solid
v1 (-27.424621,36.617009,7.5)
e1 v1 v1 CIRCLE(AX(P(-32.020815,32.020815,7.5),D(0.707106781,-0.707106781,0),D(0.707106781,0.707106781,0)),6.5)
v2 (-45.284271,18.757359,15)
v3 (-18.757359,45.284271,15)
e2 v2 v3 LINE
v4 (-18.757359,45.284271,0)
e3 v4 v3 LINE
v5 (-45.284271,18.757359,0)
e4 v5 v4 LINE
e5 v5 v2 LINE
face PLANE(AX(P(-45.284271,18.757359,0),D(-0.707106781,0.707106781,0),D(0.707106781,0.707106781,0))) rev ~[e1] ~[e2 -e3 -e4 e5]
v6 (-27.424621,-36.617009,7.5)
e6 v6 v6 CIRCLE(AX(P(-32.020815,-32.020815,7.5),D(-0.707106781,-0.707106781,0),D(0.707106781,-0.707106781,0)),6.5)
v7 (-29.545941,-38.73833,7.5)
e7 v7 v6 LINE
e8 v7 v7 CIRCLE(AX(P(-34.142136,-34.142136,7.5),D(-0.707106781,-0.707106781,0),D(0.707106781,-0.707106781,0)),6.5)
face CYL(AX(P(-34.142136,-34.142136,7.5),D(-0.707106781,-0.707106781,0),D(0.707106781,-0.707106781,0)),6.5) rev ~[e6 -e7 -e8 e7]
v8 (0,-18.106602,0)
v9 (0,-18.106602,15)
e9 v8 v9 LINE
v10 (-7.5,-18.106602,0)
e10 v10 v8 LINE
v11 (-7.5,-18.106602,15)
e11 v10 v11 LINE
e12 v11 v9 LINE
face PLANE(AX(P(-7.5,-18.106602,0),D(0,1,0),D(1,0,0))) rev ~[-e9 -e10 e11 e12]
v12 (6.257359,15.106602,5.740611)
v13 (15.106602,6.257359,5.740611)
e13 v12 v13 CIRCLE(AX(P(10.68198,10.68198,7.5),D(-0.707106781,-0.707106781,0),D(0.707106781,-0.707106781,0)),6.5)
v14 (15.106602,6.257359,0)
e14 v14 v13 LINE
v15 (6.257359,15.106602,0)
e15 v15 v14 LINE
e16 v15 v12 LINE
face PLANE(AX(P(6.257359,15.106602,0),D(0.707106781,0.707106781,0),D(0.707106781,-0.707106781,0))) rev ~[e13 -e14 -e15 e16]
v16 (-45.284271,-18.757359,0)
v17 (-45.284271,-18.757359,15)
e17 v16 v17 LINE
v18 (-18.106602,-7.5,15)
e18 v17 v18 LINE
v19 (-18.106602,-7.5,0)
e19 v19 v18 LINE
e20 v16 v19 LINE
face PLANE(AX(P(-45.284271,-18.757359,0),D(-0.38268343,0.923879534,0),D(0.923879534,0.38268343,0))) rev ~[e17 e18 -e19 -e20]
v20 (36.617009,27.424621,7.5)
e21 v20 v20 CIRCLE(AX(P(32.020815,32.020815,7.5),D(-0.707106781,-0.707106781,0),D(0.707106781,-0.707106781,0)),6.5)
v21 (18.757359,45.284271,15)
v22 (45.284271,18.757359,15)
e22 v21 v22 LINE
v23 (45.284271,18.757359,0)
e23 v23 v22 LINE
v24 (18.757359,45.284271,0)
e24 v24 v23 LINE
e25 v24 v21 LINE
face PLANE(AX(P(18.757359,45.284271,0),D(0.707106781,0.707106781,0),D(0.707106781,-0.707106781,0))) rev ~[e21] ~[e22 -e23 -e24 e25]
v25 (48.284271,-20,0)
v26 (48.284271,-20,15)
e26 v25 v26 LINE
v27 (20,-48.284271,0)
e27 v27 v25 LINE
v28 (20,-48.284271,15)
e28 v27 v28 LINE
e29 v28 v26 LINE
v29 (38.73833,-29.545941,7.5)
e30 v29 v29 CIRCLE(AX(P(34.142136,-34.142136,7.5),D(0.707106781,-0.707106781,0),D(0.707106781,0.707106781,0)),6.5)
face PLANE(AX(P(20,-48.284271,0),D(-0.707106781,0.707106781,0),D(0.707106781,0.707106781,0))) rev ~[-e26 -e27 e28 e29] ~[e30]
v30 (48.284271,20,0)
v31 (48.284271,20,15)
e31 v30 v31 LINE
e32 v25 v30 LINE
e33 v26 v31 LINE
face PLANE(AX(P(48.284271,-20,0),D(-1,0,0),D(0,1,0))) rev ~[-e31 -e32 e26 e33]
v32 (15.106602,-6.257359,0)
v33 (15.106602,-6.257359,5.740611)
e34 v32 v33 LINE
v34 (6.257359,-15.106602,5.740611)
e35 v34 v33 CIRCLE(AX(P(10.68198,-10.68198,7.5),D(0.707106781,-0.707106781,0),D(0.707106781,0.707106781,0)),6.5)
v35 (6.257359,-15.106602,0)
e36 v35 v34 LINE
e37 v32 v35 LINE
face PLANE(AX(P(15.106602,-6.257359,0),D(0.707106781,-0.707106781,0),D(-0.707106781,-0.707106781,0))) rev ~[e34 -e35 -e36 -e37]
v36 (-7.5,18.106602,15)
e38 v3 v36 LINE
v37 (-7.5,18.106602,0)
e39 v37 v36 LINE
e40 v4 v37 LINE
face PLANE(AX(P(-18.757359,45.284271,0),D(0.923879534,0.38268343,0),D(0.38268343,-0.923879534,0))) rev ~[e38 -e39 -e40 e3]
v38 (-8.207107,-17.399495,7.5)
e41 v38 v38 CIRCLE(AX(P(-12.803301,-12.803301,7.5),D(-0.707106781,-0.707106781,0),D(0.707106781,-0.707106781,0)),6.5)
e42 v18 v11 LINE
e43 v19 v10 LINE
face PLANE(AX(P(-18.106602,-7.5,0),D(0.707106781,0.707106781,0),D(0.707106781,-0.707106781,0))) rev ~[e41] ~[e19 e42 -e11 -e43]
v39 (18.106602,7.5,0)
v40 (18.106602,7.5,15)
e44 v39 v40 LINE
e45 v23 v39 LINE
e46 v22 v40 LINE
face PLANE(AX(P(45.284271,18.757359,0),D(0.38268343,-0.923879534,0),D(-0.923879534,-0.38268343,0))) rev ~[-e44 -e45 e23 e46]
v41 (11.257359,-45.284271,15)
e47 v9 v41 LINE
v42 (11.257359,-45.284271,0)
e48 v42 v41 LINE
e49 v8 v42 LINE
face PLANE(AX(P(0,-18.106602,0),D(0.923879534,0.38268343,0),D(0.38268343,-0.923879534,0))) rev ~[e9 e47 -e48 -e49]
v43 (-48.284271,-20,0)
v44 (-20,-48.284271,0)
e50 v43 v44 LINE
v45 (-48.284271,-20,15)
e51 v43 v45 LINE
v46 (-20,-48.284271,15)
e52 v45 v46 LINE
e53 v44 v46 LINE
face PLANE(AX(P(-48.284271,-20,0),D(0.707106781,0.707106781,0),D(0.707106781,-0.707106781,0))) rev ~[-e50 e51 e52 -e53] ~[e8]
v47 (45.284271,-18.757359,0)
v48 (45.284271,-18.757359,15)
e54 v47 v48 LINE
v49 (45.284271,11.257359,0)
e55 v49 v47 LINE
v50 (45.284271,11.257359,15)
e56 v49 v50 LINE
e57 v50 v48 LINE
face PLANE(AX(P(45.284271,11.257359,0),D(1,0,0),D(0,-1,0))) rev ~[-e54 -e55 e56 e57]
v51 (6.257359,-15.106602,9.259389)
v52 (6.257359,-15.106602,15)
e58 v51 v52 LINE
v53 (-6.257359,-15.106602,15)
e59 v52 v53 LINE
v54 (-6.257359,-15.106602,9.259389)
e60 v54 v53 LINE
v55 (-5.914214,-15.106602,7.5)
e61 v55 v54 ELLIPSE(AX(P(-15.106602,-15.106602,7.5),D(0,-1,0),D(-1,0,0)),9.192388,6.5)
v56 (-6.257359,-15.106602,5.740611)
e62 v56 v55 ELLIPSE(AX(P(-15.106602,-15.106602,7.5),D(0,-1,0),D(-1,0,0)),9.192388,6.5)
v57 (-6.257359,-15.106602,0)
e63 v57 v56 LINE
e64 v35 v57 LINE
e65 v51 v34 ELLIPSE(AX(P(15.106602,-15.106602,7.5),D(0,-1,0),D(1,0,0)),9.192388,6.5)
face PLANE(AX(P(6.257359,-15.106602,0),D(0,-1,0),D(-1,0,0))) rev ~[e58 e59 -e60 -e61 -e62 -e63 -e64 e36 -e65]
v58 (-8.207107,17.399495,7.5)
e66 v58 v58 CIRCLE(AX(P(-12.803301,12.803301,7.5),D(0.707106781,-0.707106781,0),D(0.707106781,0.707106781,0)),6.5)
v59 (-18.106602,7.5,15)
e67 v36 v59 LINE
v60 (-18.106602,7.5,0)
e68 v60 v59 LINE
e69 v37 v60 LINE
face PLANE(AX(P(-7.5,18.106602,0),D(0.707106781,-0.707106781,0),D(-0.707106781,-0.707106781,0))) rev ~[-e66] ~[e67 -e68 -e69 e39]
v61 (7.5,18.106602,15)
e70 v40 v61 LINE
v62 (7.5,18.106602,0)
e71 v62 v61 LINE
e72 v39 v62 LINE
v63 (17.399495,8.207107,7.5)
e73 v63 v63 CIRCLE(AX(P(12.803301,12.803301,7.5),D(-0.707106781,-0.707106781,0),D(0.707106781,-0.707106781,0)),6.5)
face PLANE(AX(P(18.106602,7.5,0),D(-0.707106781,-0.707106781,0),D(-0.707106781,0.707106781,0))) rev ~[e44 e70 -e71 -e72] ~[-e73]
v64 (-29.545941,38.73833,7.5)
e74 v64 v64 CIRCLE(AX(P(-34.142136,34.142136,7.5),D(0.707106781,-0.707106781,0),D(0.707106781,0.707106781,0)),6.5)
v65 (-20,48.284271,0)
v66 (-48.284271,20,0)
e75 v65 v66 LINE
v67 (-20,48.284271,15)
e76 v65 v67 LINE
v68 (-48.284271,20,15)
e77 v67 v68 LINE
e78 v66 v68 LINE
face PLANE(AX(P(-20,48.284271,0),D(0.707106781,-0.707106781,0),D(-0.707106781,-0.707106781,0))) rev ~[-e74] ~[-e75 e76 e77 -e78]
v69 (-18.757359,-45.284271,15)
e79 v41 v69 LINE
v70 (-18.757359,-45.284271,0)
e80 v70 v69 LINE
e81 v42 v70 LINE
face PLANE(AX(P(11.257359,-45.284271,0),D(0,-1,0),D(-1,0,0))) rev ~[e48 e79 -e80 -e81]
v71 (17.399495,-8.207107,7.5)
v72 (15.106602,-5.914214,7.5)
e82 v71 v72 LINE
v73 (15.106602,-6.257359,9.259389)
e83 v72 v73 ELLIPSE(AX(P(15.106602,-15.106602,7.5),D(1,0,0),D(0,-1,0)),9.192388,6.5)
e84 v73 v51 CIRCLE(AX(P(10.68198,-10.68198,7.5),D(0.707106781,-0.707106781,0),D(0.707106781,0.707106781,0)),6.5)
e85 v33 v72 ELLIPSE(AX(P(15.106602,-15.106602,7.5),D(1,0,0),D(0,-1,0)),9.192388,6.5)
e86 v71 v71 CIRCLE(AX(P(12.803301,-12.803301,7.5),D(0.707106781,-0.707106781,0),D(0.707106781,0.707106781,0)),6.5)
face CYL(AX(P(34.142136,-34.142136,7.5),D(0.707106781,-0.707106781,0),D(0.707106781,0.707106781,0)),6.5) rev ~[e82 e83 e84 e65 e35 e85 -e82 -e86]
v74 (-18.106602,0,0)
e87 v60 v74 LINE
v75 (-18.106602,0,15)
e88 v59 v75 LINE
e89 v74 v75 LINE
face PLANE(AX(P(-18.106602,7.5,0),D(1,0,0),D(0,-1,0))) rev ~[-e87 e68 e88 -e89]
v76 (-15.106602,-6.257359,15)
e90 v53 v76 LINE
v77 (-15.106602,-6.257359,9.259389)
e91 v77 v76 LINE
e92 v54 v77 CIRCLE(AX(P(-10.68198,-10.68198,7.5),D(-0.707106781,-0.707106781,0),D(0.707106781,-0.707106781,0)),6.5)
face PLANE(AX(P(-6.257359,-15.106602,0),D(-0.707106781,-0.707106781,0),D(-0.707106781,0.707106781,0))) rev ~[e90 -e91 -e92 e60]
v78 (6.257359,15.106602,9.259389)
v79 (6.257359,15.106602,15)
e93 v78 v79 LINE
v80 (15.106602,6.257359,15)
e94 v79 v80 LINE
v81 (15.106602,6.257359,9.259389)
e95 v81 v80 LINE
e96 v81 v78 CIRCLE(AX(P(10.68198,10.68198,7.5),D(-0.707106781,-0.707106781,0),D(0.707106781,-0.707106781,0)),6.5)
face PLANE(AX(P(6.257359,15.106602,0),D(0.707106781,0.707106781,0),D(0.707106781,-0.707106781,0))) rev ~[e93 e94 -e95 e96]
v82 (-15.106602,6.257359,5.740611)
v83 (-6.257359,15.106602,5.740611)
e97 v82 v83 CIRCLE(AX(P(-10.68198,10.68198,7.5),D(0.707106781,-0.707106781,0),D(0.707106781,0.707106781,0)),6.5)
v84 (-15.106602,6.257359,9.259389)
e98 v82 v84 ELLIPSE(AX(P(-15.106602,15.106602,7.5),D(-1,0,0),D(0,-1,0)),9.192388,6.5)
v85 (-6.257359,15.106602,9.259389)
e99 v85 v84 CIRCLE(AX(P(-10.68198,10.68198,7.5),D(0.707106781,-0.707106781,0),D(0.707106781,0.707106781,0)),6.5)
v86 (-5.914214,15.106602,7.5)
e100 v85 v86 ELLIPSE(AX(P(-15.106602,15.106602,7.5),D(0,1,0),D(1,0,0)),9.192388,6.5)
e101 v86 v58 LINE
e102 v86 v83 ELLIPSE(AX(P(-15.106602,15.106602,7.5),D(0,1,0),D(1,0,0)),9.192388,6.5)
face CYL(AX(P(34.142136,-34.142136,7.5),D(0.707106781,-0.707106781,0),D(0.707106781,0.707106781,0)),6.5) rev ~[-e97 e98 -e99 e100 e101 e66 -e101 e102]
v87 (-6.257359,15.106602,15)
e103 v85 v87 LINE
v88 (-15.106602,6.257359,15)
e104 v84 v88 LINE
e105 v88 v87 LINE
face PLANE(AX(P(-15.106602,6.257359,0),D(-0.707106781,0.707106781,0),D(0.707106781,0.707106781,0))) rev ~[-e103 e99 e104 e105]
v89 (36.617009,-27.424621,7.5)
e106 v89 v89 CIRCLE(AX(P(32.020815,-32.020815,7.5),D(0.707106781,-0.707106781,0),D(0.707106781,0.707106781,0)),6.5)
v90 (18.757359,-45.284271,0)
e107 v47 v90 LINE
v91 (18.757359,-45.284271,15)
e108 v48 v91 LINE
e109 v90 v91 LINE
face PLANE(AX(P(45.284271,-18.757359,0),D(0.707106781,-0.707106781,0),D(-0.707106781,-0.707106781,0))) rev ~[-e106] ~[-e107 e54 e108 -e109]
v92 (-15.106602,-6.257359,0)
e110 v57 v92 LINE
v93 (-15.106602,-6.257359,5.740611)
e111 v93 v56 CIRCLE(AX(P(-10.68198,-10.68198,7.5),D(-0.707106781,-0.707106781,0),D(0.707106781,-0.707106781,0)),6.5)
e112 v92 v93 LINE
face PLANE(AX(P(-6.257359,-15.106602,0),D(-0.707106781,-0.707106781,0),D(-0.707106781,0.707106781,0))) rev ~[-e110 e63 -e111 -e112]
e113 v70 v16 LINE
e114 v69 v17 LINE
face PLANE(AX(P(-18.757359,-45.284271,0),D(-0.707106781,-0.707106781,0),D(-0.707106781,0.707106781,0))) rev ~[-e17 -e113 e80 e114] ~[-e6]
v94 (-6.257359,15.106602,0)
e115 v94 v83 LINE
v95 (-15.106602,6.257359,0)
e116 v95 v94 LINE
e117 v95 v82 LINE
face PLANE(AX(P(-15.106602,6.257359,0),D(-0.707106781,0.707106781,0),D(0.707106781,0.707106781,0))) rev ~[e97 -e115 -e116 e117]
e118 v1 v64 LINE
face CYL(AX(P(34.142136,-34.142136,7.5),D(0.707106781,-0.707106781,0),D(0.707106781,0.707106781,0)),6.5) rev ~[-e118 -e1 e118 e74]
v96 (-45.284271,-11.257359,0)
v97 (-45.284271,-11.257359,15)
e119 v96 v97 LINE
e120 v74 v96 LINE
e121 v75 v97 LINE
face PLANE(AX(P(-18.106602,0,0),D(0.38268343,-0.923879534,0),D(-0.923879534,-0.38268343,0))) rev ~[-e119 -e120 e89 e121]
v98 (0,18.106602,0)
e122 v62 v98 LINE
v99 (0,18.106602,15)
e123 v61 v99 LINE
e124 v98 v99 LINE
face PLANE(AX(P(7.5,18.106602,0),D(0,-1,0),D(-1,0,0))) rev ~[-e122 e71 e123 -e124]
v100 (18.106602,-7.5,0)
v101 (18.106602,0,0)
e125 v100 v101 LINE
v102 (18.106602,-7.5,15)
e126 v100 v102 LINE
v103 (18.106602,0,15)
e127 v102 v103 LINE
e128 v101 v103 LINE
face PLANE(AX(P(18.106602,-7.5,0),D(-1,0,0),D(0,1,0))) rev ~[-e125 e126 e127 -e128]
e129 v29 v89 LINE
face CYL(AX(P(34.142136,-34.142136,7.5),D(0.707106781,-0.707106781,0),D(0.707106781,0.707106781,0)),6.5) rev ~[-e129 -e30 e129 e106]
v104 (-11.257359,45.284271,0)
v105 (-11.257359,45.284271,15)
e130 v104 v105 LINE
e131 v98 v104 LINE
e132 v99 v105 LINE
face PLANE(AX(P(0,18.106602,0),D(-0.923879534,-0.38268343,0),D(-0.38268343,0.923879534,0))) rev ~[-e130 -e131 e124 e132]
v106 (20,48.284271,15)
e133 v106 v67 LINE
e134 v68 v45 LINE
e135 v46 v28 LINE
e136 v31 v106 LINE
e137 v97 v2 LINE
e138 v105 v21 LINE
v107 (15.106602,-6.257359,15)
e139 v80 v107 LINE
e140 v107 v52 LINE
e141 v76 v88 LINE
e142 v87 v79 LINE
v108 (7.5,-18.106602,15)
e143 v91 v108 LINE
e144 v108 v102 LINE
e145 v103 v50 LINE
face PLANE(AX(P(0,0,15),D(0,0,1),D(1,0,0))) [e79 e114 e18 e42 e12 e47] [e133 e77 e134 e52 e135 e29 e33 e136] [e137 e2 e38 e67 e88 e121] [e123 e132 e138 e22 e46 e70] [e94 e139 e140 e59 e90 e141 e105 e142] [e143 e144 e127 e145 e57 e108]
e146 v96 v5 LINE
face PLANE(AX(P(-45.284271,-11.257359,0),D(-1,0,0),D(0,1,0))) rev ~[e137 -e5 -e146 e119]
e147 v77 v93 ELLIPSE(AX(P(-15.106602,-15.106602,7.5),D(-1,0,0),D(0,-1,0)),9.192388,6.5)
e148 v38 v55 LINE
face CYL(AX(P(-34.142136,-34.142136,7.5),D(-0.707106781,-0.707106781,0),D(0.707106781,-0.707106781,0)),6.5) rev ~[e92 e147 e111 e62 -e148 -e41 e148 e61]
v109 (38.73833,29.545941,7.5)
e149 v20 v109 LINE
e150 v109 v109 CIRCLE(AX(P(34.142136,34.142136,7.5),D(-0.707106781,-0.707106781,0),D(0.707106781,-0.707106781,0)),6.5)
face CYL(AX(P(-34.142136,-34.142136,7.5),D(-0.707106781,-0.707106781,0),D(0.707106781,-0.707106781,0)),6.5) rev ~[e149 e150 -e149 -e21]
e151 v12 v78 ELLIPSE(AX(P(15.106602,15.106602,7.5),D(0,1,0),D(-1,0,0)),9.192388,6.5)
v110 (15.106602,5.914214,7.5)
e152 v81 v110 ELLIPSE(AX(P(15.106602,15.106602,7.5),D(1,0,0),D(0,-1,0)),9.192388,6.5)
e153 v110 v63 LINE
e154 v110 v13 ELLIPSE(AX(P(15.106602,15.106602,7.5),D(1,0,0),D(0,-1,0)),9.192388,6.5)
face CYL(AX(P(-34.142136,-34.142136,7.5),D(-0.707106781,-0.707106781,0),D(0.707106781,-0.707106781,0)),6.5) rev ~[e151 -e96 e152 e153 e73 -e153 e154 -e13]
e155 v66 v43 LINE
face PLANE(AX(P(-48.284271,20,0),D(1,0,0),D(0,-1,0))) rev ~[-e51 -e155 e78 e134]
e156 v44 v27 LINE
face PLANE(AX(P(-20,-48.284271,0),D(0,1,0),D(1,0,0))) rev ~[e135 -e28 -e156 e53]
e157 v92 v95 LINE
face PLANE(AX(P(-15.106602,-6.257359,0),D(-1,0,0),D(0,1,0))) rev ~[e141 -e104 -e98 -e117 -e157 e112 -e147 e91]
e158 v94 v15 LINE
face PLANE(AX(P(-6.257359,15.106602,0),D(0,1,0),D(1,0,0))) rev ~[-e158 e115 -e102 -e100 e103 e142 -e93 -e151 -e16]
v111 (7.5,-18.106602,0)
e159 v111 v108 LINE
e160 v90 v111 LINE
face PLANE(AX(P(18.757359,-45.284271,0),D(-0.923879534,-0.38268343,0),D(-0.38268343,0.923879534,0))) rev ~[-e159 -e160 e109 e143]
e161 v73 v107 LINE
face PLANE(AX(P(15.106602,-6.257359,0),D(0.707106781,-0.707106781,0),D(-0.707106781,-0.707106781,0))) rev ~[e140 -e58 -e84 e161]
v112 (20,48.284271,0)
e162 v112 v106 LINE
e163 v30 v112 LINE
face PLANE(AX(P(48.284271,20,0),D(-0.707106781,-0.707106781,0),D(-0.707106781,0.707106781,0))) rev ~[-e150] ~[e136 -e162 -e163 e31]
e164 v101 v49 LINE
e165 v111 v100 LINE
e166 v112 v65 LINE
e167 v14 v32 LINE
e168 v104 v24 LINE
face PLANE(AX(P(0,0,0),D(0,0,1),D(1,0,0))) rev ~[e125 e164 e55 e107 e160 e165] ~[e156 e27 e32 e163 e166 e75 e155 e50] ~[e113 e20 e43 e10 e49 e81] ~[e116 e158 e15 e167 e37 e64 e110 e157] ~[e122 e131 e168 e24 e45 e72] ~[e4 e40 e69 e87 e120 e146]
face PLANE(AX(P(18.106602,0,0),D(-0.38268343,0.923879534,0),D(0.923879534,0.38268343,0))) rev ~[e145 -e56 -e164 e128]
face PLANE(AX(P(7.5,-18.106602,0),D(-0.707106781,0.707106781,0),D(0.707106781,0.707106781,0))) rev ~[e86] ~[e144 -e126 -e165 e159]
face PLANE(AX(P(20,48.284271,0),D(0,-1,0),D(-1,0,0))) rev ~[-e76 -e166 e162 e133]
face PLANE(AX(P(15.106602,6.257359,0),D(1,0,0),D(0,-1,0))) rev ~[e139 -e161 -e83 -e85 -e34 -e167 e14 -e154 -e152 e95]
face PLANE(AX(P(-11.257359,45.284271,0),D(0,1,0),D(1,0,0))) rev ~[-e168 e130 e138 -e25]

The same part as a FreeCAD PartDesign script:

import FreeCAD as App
import Part
import Sketcher

V = App.Vector
Q = App.Units.Quantity


def add_polygon(sketch, points):
    """Adds a closed chain of lines whose ends are joined by coincident constraints."""
    first, n = sketch.GeometryCount, len(points)
    for a, b in zip(points, points[1:] + points[:1]):
        sketch.addGeometry(Part.LineSegment(App.Vector(*a, 0), App.Vector(*b, 0)), False)
    for i in range(n):
        sketch.addConstraint(Sketcher.Constraint("Coincident", first + i, 2, first + (i + 1) % n, 1))

doc = App.newDocument("Part")
body = doc.addObject("PartDesign::Body", "Body")

sketch1 = body.newObject("Sketcher::SketchObject", "Sketch")
sketch1.AttachmentSupport = (doc.getObject("XY_Plane"), [""])
sketch1.MapMode = "FlatFace"
add_polygon(sketch1, [(-48, 20), (-48, -20), (-20, -48), (20, -48), (48, -20), (48, 20), (20, 48), (-20, 48)])
add_polygon(sketch1, [(11, -45), (-19, -45), (-45, -19), (-18, -8), (-8, -18), (0, -18)])
add_polygon(sketch1, [(8, -18), (18, -8), (18, 0), (45, 11), (45, -19), (19, -45)])
add_polygon(sketch1, [(18, 8), (8, 18), (0, 18), (-11, 45), (19, 45), (45, 19)])
add_polygon(sketch1, [(-8, 18), (-18, 8), (-18, 0), (-45, -11), (-45, 19), (-19, 45)])
add_polygon(sketch1, [(-6, -15), (-15, -6), (-15, 6), (-6, 15), (6, 15), (15, 6), (15, -6), (6, -15)])
sketch1.addConstraint([
    Sketcher.Constraint("Vertical", 0),
    Sketcher.Constraint("Horizontal", 2),
    Sketcher.Constraint("Vertical", 4),
    Sketcher.Constraint("Horizontal", 6),
    Sketcher.Constraint("Horizontal", 8),
    Sketcher.Constraint("Horizontal", 12),
    Sketcher.Constraint("Vertical", 15),
    Sketcher.Constraint("Vertical", 17),
    Sketcher.Constraint("Horizontal", 21),
    Sketcher.Constraint("Horizontal", 23),
    Sketcher.Constraint("Vertical", 27),
    Sketcher.Constraint("Vertical", 29),
    Sketcher.Constraint("Vertical", 33),
    Sketcher.Constraint("Horizontal", 35),
    Sketcher.Constraint("Vertical", 37),
    Sketcher.Constraint("Horizontal", 39),
    Sketcher.Constraint("Symmetric", 0, 2, 4, 2, -1, 1),
    Sketcher.Constraint("Symmetric", 1, 2, 5, 2, -1, 1),
    Sketcher.Constraint("Symmetric", 11, 2, 20, 2, -1, 1),
    Sketcher.Constraint("Symmetric", 13, 2, 22, 2, -1, 1),
    Sketcher.Constraint("Symmetric", 9, 2, 24, 2, -1, 1),
    Sketcher.Constraint("Symmetric", 10, 2, 25, 2, -1, 1),
    Sketcher.Constraint("Symmetric", 14, 2, 26, 2, -1, 1),
    Sketcher.Constraint("Symmetric", 16, 2, 28, 2, -1, 1),
    Sketcher.Constraint("Symmetric", 18, 2, 30, 2, -1, 1),
    Sketcher.Constraint("Symmetric", 19, 2, 31, 2, -1, 1),
    Sketcher.Constraint("Symmetric", 32, 2, 36, 2, -1, 1),
    Sketcher.Constraint("Symmetric", 34, 2, 38, 2, -1, 1),
    Sketcher.Constraint("Symmetric", 10, 2, 14, 2, -2),
    Sketcher.Constraint("Symmetric", 9, 2, 17, 2, -2),
    Sketcher.Constraint("Symmetric", 8, 2, 18, 2, -2),
    Sketcher.Constraint("Symmetric", 11, 2, 19, 2, -2),
    Sketcher.Constraint("PointOnObject", 12, 2, -2),
    Sketcher.Constraint("PointOnObject", 15, 2, -1),
    Sketcher.Constraint("PointOnObject", 21, 2, -2),
    Sketcher.Constraint("PointOnObject", 27, 2, -1),
    Sketcher.Constraint("Perpendicular", 1, 3),
    Sketcher.Constraint("Perpendicular", 5, 7),
    Sketcher.Constraint("Perpendicular", 7, 9),
    Sketcher.Constraint("Parallel", 9, 11),
    Sketcher.Constraint("Perpendicular", 10, 13),
    Sketcher.Constraint("Perpendicular", 11, 14),
    Sketcher.Constraint("Perpendicular", 13, 16),
    Sketcher.Constraint("Perpendicular", 16, 19),
    Sketcher.Constraint("Parallel", 20, 24),
    Sketcher.Constraint("Parallel", 26, 30),
    Sketcher.Constraint("Perpendicular", 30, 32),
    Sketcher.Constraint("Perpendicular", 32, 34),
    Sketcher.Constraint("Perpendicular", 34, 36),
    Sketcher.Constraint("Perpendicular", 36, 38),
    Sketcher.Constraint("Horizontal", 0, 2, 3, 2),
    Sketcher.Constraint("Horizontal", 4, 2, 7, 2),
    Sketcher.Constraint("Horizontal", 33, 2, 36, 2),
    Sketcher.Constraint("Equal", 6, 0),
    Sketcher.Constraint("Equal", 21, 15),
    Sketcher.Constraint("Equal", 39, 33),
    Sketcher.Constraint("DistanceX", 2, 1, 2, 2, Q("40 mm")),
    Sketcher.Constraint("Distance", 1, Q("40 mm")),
    Sketcher.Constraint("Distance", 11, Q("15 mm")),
    Sketcher.Constraint("DistanceX", 12, 1, 12, 2, Q("7.5 mm")),
    Sketcher.Constraint("Angle", 10, Q("22.5 deg")),
    Sketcher.Constraint("DistanceY", 1, 2, 8, 2, Q("3 mm")),
    Sketcher.Constraint("DistanceX", 10, 2, 32, 2, Q("3 mm")),
    Sketcher.Constraint("Distance", 32, Q("12.514719 mm")),
])
pad1 = body.newObject("PartDesign::Pad", "Pad")
pad1.Profile = sketch1
pad1.Length = 15

sketch2 = body.newObject("Sketcher::SketchObject", "Sketch001")
sketch2.Placement = App.Placement(V(34.142136, -34.142136, 0), App.Rotation(V(0.707106781, 0.707106781, 0), V(0, 0, 0.999999999), V(0.707106781, -0.707106781, 0), "ZXY"))
sketch2.addGeometry(Part.Circle(V(0, 7, 0), V(0, 0, 1), 6), False)
sketch2.addConstraint([
    Sketcher.Constraint("PointOnObject", 0, 3, -2),
    Sketcher.Constraint("Diameter", 0, Q("13 mm")),
    Sketcher.Constraint("DistanceY", -1, 1, 0, 3, Q("7.5 mm")),
])
pocket1 = body.newObject("PartDesign::Pocket", "Pocket")
pocket1.Profile = sketch2
pocket1.Type = "ThroughAll"

sketch3 = body.newObject("Sketcher::SketchObject", "Sketch002")
sketch3.Placement = App.Placement(V(-34.142136, -34.142136, 0), App.Rotation(V(0.707106781, -0.707106781, 0), V(0, 0, 0.999999999), V(-0.707106781, -0.707106781, 0), "ZXY"))
sketch3.addGeometry(Part.Circle(V(0, 7, 0), V(0, 0, 1), 6), False)
sketch3.addConstraint([
    Sketcher.Constraint("PointOnObject", 0, 3, -2),
    Sketcher.Constraint("Diameter", 0, Q("13 mm")),
    Sketcher.Constraint("DistanceY", -1, 1, 0, 3, Q("7.5 mm")),
])
pocket2 = body.newObject("PartDesign::Pocket", "Pocket001")
pocket2.Profile = sketch3
pocket2.Type = "ThroughAll"

doc.recompute()
